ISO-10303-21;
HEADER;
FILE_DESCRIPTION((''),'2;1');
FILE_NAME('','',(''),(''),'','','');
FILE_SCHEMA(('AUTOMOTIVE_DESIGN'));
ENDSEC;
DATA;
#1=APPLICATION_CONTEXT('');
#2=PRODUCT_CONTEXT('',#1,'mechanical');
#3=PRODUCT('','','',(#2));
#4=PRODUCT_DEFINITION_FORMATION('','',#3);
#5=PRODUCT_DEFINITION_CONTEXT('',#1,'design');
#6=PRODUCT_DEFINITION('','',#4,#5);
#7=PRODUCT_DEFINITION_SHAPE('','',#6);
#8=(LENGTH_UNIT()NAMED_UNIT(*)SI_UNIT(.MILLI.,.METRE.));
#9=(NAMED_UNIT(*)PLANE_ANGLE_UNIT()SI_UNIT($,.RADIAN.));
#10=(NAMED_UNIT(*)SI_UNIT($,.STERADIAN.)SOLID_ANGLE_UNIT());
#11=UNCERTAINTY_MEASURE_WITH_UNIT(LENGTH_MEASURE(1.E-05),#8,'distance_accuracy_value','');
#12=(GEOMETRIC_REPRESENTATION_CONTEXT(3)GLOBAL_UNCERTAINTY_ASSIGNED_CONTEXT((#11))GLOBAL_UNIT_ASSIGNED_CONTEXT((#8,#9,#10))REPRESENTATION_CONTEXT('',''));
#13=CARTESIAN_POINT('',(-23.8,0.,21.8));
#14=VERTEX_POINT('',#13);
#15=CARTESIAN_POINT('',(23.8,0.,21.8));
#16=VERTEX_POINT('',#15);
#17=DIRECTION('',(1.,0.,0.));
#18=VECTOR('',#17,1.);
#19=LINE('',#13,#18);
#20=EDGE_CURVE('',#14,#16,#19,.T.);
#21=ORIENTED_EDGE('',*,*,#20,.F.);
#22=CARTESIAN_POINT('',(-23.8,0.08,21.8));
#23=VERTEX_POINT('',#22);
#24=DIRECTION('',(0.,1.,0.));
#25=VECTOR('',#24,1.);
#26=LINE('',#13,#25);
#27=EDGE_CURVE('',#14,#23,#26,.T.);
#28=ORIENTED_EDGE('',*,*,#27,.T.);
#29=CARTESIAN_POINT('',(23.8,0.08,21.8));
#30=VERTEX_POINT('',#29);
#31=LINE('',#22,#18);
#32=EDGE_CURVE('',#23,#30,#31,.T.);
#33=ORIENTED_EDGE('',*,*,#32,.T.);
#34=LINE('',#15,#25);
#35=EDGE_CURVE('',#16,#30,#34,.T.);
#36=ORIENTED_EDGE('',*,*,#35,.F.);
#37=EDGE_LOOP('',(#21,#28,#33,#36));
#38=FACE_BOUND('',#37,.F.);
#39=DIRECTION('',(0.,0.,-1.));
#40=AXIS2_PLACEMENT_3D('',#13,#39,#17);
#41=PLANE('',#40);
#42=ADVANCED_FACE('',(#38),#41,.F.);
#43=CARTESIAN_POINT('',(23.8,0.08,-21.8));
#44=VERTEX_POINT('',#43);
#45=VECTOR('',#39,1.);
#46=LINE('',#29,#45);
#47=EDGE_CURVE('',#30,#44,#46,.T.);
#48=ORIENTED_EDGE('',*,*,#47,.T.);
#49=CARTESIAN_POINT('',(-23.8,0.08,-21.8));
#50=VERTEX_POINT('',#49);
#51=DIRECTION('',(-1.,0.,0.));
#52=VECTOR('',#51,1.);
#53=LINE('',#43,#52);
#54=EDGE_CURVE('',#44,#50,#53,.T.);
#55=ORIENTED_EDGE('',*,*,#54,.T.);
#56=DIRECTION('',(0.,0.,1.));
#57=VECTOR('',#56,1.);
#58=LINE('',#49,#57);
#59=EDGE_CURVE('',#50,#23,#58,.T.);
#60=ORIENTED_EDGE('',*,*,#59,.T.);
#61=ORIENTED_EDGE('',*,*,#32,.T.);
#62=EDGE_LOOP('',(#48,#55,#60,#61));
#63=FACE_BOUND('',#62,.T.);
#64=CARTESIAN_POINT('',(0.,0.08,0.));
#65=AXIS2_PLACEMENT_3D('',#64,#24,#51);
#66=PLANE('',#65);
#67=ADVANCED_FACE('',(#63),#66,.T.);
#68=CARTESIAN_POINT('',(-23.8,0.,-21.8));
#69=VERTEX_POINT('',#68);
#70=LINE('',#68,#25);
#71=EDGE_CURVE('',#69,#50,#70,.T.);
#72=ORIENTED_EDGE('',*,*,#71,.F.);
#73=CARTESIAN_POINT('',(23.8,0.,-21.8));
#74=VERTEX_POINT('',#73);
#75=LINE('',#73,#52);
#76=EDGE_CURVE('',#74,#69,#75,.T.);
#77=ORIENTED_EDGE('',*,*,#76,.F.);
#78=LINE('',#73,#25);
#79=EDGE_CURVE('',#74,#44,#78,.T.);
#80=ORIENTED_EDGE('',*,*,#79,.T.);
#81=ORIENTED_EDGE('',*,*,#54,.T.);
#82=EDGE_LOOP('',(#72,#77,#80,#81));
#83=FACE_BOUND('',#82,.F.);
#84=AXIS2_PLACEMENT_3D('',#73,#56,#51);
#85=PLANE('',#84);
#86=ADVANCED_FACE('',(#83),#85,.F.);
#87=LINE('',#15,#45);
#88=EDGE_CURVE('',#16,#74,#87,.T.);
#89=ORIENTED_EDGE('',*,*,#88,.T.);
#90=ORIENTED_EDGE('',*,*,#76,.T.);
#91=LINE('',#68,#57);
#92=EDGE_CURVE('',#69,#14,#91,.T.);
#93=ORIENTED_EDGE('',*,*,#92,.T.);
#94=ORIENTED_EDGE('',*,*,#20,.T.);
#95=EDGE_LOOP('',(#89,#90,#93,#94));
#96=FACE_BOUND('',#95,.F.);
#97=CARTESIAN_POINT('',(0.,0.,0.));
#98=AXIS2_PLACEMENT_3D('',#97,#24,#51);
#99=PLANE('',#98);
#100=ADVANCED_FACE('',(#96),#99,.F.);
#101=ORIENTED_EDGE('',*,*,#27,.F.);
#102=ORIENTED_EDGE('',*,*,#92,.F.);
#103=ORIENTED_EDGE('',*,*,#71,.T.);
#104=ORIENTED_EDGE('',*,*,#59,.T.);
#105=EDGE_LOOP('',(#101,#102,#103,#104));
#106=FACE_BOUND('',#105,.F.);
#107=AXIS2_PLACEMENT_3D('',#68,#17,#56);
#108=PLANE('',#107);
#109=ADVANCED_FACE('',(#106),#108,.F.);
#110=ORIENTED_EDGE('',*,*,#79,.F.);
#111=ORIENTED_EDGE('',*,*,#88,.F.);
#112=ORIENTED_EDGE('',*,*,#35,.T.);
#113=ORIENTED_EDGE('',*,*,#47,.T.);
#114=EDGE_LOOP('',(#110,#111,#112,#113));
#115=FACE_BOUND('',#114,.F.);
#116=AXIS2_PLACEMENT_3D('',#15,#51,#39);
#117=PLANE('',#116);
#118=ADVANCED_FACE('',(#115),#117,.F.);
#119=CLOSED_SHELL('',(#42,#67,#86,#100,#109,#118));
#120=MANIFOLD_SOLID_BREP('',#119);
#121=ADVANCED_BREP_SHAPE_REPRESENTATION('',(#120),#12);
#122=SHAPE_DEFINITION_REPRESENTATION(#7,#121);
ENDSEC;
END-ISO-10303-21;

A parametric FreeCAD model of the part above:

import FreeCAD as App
import Part
import Sketcher
from FreeCAD import Vector

doc = App.newDocument("Part")
body = doc.addObject("PartDesign::Body", "Body")

# Sketch on XZ plane
sketch1 = body.newObject("Sketcher::SketchObject", "Sketch")
sketch1.AttachmentSupport = (doc.getObject("XZ_Plane"), [""])
sketch1.MapMode = "FlatFace"
sketch1.addGeometry(Part.LineSegment(Vector(24, 22, 0), Vector(24, -22, 0)), False)
sketch1.addGeometry(Part.LineSegment(Vector(24, -22, 0), Vector(-24, -22, 0)), False)
sketch1.addGeometry(Part.LineSegment(Vector(-24, -22, 0), Vector(-24, 22, 0)), False)
sketch1.addGeometry(Part.LineSegment(Vector(-24, 22, 0), Vector(24, 22, 0)), False)
sketch1.addConstraint(Sketcher.Constraint("Coincident", 0, 2, 1, 1))
sketch1.addConstraint(Sketcher.Constraint("Coincident", 1, 2, 2, 1))
sketch1.addConstraint(Sketcher.Constraint("Coincident", 2, 2, 3, 1))
sketch1.addConstraint(Sketcher.Constraint("Coincident", 3, 2, 0, 1))
sketch1.addConstraint(Sketcher.Constraint("Vertical", 0))
sketch1.addConstraint(Sketcher.Constraint("Horizontal", 1))
sketch1.addConstraint(Sketcher.Constraint("Vertical", 2))
sketch1.addConstraint(Sketcher.Constraint("Horizontal", 3))
sketch1.addConstraint(Sketcher.Constraint("Symmetric", 0, 2, 2, 2, -1, 1))
sketch1.addConstraint(Sketcher.Constraint("DistanceX", 1, 2, 1, 1, 47.6))
sketch1.addConstraint(Sketcher.Constraint("DistanceY", 0, 2, 0, 1, 43.6))
pad1 = body.newObject("PartDesign::Pad", "Pad")
pad1.Profile = sketch1
pad1.Length = 0.08
pad1.Reversed = True

doc.recompute()
